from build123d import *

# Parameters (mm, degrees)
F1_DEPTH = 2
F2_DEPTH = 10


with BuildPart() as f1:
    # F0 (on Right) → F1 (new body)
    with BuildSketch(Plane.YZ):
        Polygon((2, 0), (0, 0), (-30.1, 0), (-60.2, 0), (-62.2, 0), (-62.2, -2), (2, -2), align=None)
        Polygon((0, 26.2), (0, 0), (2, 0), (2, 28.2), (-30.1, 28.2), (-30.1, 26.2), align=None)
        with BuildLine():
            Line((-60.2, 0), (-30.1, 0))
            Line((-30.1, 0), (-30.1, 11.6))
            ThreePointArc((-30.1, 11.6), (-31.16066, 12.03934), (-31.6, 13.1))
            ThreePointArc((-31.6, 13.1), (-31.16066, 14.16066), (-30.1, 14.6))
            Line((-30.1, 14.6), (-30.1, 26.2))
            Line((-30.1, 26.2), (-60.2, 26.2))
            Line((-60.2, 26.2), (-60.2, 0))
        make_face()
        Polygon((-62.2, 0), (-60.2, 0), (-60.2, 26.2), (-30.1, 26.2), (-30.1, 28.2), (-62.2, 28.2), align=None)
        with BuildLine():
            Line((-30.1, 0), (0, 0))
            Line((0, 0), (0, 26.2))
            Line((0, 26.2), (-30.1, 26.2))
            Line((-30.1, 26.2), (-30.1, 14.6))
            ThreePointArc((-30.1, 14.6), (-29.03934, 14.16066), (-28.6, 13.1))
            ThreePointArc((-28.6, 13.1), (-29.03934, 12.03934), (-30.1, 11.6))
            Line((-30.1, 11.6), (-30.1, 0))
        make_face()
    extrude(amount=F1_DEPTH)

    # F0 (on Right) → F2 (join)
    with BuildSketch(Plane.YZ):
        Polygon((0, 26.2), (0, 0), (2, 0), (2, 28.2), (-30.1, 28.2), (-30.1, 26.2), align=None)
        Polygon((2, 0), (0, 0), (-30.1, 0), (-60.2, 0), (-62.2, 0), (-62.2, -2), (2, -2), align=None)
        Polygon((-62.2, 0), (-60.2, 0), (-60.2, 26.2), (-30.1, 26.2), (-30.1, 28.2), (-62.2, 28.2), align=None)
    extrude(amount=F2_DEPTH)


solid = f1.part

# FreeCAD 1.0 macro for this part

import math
import FreeCAD as App
import Part
import Sketcher

doc = App.newDocument("Part")
body = doc.addObject("PartDesign::Body", "Body")

# Sketch on YZ plane
sketch1 = doc.addObject("Sketcher::SketchObject", "Sketch")
body.addObject(sketch1)
sketch1.AttachmentSupport = (doc.YZ_Plane, [""])
sketch1.MapMode = "FlatFace"
sketch1.addGeometry(Part.LineSegment(App.Vector(2, 28.2, 0), App.Vector(-62.2, 28.2, 0)), False)
sketch1.addGeometry(Part.LineSegment(App.Vector(-62.2, 28.2, 0), App.Vector(-62.2, -2, 0)), False)
sketch1.addGeometry(Part.LineSegment(App.Vector(-62.2, -2, 0), App.Vector(2, -2, 0)), False)
sketch1.addGeometry(Part.LineSegment(App.Vector(2, -2, 0), App.Vector(2, 28.2, 0)), False)
sketch1.addGeometry(Part.ArcOfCircle(Part.Circle(App.Vector(-30.1, 13.1, 0), App.Vector(0, 0, 1), 1.5), math.radians(-180), math.radians(-90)), False)
sketch1.addGeometry(Part.ArcOfCircle(Part.Circle(App.Vector(-30.1, 13.1, 0), App.Vector(0, 0, 1), 1.5), math.radians(90), math.radians(180)), False)
sketch1.addGeometry(Part.ArcOfCircle(Part.Circle(App.Vector(-30.1, 13.1, 0), App.Vector(0, 0, 1), 1.5), math.radians(0), math.radians(90)), False)
sketch1.addGeometry(Part.ArcOfCircle(Part.Circle(App.Vector(-30.1, 13.1, 0), App.Vector(0, 0, 1), 1.5), math.radians(-90), math.radians(0)), False)
sketch1.addConstraint(Sketcher.Constraint("Coincident", 0, 2, 1, 1))
sketch1.addConstraint(Sketcher.Constraint("Coincident", 1, 2, 2, 1))
sketch1.addConstraint(Sketcher.Constraint("Coincident", 2, 2, 3, 1))
sketch1.addConstraint(Sketcher.Constraint("Coincident", 3, 2, 0, 1))
sketch1.addConstraint(Sketcher.Constraint("Tangent", 4, 1, 5, 2))
sketch1.addConstraint(Sketcher.Constraint("Tangent", 5, 1, 6, 2))
sketch1.addConstraint(Sketcher.Constraint("Tangent", 6, 1, 7, 2))
sketch1.addConstraint(Sketcher.Constraint("Tangent", 7, 1, 4, 2))
sketch1.addConstraint(Sketcher.Constraint("Horizontal", 0))
sketch1.addConstraint(Sketcher.Constraint("Vertical", 1))
sketch1.addConstraint(Sketcher.Constraint("Horizontal", 2))
sketch1.addConstraint(Sketcher.Constraint("Vertical", 3))
sketch1.addConstraint(Sketcher.Constraint("Equal", 4, 5))
sketch1.addConstraint(Sketcher.Constraint("Horizontal", 7, 3, 4, 1))
sketch1.addConstraint(Sketcher.Constraint("Horizontal", 4, 1, 6, 1))
sketch1.addConstraint(Sketcher.Constraint("Vertical", 7, 3, 5, 1))
sketch1.addConstraint(Sketcher.Constraint("Vertical", 5, 1, 7, 1))
sketch1.addConstraint(Sketcher.Constraint("Radius", 4, 1.500001))
sketch1.addConstraint(Sketcher.Constraint("DistanceX", 0, 2, 0, 1, 64.2))
sketch1.addConstraint(Sketcher.Constraint("DistanceY", 1, 2, 1, 1, 30.2))
sketch1.addConstraint(Sketcher.Constraint("DistanceY", 1, 2, -1, 1, 2.0))
sketch1.addConstraint(Sketcher.Constraint("DistanceX", -1, 1, 2, 2, 2.0))
sketch1.addConstraint(Sketcher.Constraint("DistanceX", 4, 3, -1, 1, 30.099999))
sketch1.addConstraint(Sketcher.Constraint("DistanceY", -1, 1, 4, 3, 13.100001))
pad1 = doc.addObject("PartDesign::Pad", "Pad")
body.addObject(pad1)
pad1.Profile = sketch1
pad1.Length = 2

# Sketch on YZ plane
sketch2 = doc.addObject("Sketcher::SketchObject", "Sketch001")
body.addObject(sketch2)
sketch2.AttachmentSupport = (doc.YZ_Plane, [""])
sketch2.MapMode = "FlatFace"
sketch2.addGeometry(Part.LineSegment(App.Vector(-62, -2, 0), App.Vector(2, -2, 0)), False)
sketch2.addGeometry(Part.LineSegment(App.Vector(2, -2, 0), App.Vector(2, 28, 0)), False)
sketch2.addGeometry(Part.LineSegment(App.Vector(2, 28, 0), App.Vector(-62, 28, 0)), False)
sketch2.addGeometry(Part.LineSegment(App.Vector(-62, 28, 0), App.Vector(-62, -2, 0)), False)
sketch2.addGeometry(Part.LineSegment(App.Vector(0, 26, 0), App.Vector(0, 0, 0)), False)
sketch2.addGeometry(Part.LineSegment(App.Vector(0, 0, 0), App.Vector(-60, 0, 0)), False)
sketch2.addGeometry(Part.LineSegment(App.Vector(-60, 0, 0), App.Vector(-60, 26, 0)), False)
sketch2.addGeometry(Part.LineSegment(App.Vector(-60, 26, 0), App.Vector(0, 26, 0)), False)
sketch2.addConstraint(Sketcher.Constraint("Coincident", 0, 2, 1, 1))
sketch2.addConstraint(Sketcher.Constraint("Coincident", 1, 2, 2, 1))
sketch2.addConstraint(Sketcher.Constraint("Coincident", 2, 2, 3, 1))
sketch2.addConstraint(Sketcher.Constraint("Coincident", 3, 2, 0, 1))
sketch2.addConstraint(Sketcher.Constraint("Coincident", 4, 2, 5, 1))
sketch2.addConstraint(Sketcher.Constraint("Coincident", 5, 2, 6, 1))
sketch2.addConstraint(Sketcher.Constraint("Coincident", 6, 2, 7, 1))
sketch2.addConstraint(Sketcher.Constraint("Coincident", 7, 2, 4, 1))
sketch2.addConstraint(Sketcher.Constraint("Horizontal", 0))
sketch2.addConstraint(Sketcher.Constraint("Vertical", 1))
sketch2.addConstraint(Sketcher.Constraint("Horizontal", 2))
sketch2.addConstraint(Sketcher.Constraint("Vertical", 3))
sketch2.addConstraint(Sketcher.Constraint("Vertical", 4))
sketch2.addConstraint(Sketcher.Constraint("Horizontal", 5))
sketch2.addConstraint(Sketcher.Constraint("Vertical", 6))
sketch2.addConstraint(Sketcher.Constraint("Horizontal", 7))
sketch2.addConstraint(Sketcher.Constraint("Coincident", 4, 2, -1, 1))
sketch2.addConstraint(Sketcher.Constraint("DistanceX", 0, 1, 0, 2, 64.2))
sketch2.addConstraint(Sketcher.Constraint("DistanceX", 5, 2, 5, 1, 60.2))
sketch2.addConstraint(Sketcher.Constraint("DistanceY", 1, 1, 1, 2, 30.2))
sketch2.addConstraint(Sketcher.Constraint("DistanceY", 4, 2, 4, 1, 26.2))
sketch2.addConstraint(Sketcher.Constraint("DistanceX", -1, 1, 0, 2, 2.0))
sketch2.addConstraint(Sketcher.Constraint("DistanceY", 0, 2, -1, 1, 2.0))
pad2 = doc.addObject("PartDesign::Pad", "Pad001")
body.addObject(pad2)
pad2.Profile = sketch2
pad2.Length = 10

doc.recompute()
